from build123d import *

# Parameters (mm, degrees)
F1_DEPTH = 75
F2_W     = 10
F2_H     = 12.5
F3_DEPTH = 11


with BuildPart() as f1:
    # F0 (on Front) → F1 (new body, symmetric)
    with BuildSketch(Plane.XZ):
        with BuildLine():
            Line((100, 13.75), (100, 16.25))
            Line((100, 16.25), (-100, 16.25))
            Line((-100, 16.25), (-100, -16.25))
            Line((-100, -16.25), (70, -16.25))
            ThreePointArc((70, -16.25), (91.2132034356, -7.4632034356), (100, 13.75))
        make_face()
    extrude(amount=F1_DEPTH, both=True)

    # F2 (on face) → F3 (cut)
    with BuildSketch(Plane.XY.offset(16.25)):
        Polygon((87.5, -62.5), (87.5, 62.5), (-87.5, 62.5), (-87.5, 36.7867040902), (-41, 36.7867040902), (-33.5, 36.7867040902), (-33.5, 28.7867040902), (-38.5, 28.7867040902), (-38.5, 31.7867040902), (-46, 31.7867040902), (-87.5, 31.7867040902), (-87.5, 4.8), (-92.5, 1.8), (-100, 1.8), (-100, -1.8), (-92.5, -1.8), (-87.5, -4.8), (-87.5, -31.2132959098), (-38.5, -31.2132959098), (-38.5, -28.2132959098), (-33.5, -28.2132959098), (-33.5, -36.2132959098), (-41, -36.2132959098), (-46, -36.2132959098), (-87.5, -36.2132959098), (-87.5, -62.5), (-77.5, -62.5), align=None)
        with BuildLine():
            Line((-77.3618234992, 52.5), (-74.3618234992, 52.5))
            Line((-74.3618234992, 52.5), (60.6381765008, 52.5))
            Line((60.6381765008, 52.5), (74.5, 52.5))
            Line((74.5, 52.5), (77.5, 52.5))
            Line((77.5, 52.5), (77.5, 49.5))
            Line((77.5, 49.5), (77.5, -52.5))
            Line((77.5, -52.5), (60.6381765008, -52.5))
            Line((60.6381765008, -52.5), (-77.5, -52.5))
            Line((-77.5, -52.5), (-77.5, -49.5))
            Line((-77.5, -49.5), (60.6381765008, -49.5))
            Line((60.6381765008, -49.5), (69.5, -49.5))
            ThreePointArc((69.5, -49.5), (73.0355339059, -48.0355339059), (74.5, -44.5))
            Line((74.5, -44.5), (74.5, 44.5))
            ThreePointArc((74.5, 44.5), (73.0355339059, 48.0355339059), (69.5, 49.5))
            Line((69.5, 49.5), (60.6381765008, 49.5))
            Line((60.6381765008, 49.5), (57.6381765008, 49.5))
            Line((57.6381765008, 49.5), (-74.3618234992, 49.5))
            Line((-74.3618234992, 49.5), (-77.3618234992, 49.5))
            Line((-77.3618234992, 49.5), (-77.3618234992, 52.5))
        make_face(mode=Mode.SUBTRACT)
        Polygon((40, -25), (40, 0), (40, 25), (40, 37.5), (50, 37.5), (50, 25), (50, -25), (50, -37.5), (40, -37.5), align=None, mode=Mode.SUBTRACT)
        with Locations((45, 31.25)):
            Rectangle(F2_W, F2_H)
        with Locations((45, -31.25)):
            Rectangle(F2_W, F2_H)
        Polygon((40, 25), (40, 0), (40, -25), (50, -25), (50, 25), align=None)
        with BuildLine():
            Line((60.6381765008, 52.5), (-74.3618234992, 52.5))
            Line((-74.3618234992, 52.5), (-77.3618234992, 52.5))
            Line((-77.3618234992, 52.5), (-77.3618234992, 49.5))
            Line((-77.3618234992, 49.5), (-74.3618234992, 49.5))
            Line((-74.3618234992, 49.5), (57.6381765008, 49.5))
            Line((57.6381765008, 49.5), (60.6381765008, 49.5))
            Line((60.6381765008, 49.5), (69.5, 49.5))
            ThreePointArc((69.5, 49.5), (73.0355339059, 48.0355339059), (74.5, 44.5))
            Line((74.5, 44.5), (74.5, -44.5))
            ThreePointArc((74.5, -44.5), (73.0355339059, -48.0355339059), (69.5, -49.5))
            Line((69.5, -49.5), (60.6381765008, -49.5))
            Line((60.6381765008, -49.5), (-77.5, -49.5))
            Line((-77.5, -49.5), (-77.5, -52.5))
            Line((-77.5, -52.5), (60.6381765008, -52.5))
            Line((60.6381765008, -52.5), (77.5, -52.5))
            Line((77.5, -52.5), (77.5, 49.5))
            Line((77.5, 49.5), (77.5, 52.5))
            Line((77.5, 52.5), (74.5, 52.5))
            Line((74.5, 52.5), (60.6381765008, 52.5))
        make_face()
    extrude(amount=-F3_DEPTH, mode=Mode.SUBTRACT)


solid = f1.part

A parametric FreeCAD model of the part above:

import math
import FreeCAD as App
import Part
import Sketcher

V = App.Vector

doc = App.newDocument("Part")
body = doc.addObject("PartDesign::Body", "Body")

# Sketch on XZ plane
sketch1 = doc.addObject("Sketcher::SketchObject", "Sketch")
body.addObject(sketch1)
sketch1.AttachmentSupport = (doc.XZ_Plane, [""])
sketch1.MapMode = "FlatFace"
sketch1.addGeometry([
    Part.LineSegment(V(100, 13.75, 0), V(100, 16.25, 0)),  # 0
    Part.LineSegment(V(100, 16.25, 0), V(-100, 16.25, 0)),  # 1
    Part.LineSegment(V(-100, 16.25, 0), V(-100, -16.25, 0)),  # 2
    Part.LineSegment(V(-100, -16.25, 0), V(70, -16.25, 0)),  # 3
    Part.ArcOfCircle(Part.Circle(V(70, 13.75, 0), V(0, 0, 1), 30), math.radians(-90), math.radians(0)),  # 4
], False)
sketch1.addConstraint([
    Sketcher.Constraint("Coincident", 0, 2, 1, 1),
    Sketcher.Constraint("Coincident", 1, 2, 2, 1),
    Sketcher.Constraint("Coincident", 2, 2, 3, 1),
    Sketcher.Constraint("Tangent", 3, 2, 4, 1),
    Sketcher.Constraint("Tangent", 4, 2, 0, 1),
    Sketcher.Constraint("Vertical", 0),
    Sketcher.Constraint("Horizontal", 1),
    Sketcher.Constraint("Vertical", 2),
    Sketcher.Constraint("Horizontal", 3),
    Sketcher.Constraint("Symmetric", 0, 2, 2, 2, -1, 1),
    Sketcher.Constraint("Radius", 4, 30.0),
    Sketcher.Constraint("DistanceX", 1, 2, 1, 1, 200.0),
    Sketcher.Constraint("DistanceY", 0, 1, 0, 2, 2.5),
])
pad1 = doc.addObject("PartDesign::Pad", "Pad")
body.addObject(pad1)
pad1.Profile = sketch1
pad1.Length = 150
pad1.Midplane = True

# Sketch on XY plane
sketch2 = doc.addObject("Sketcher::SketchObject", "Sketch001")
body.addObject(sketch2)
sketch2.AttachmentSupport = (doc.XY_Plane, [""])
sketch2.MapMode = "FlatFace"
sketch2.AttachmentOffset = App.Placement(V(0, 0, 16.25), App.Rotation())
sketch2.addGeometry([
    Part.LineSegment(V(87.5, -62.5, 0), V(87.5, 62.5, 0)),  # 0
    Part.LineSegment(V(87.5, 62.5, 0), V(-87.5, 62.5, 0)),  # 1
    Part.LineSegment(V(-87.5, 62.5, 0), V(-87.5, 36.786704, 0)),  # 2
    Part.LineSegment(V(-87.5, 36.786704, 0), V(-33.5, 36.786704, 0)),  # 3
    Part.LineSegment(V(-33.5, 36.786704, 0), V(-33.5, 28.786704, 0)),  # 4
    Part.LineSegment(V(-33.5, 28.786704, 0), V(-38.5, 28.786704, 0)),  # 5
    Part.LineSegment(V(-38.5, 28.786704, 0), V(-38.5, 31.786704, 0)),  # 6
    Part.LineSegment(V(-38.5, 31.786704, 0), V(-87.5, 31.786704, 0)),  # 7
    Part.LineSegment(V(-87.5, 31.786704, 0), V(-87.5, 4.8, 0)),  # 8
    Part.LineSegment(V(-87.5, 4.8, 0), V(-92.5, 1.8, 0)),  # 9
    Part.LineSegment(V(-92.5, 1.8, 0), V(-100, 1.8, 0)),  # 10
    Part.LineSegment(V(-100, 1.8, 0), V(-100, -1.8, 0)),  # 11
    Part.LineSegment(V(-100, -1.8, 0), V(-92.5, -1.8, 0)),  # 12
    Part.LineSegment(V(-92.5, -1.8, 0), V(-87.5, -4.8, 0)),  # 13
    Part.LineSegment(V(-87.5, -4.8, 0), V(-87.5, -31.213296, 0)),  # 14
    Part.LineSegment(V(-87.5, -31.213296, 0), V(-38.5, -31.213296, 0)),  # 15
    Part.LineSegment(V(-38.5, -31.213296, 0), V(-38.5, -28.213296, 0)),  # 16
    Part.LineSegment(V(-38.5, -28.213296, 0), V(-33.5, -28.213296, 0)),  # 17
    Part.LineSegment(V(-33.5, -28.213296, 0), V(-33.5, -36.213296, 0)),  # 18
    Part.LineSegment(V(-33.5, -36.213296, 0), V(-87.5, -36.213296, 0)),  # 19
    Part.LineSegment(V(-87.5, -36.213296, 0), V(-87.5, -62.5, 0)),  # 20
    Part.LineSegment(V(-87.5, -62.5, 0), V(87.5, -62.5, 0)),  # 21
], False)
sketch2.addConstraint([
    Sketcher.Constraint("Coincident", 0, 2, 1, 1),
    Sketcher.Constraint("Coincident", 1, 2, 2, 1),
    Sketcher.Constraint("Coincident", 2, 2, 3, 1),
    Sketcher.Constraint("Coincident", 3, 2, 4, 1),
    Sketcher.Constraint("Coincident", 4, 2, 5, 1),
    Sketcher.Constraint("Coincident", 5, 2, 6, 1),
    Sketcher.Constraint("Coincident", 6, 2, 7, 1),
    Sketcher.Constraint("Coincident", 7, 2, 8, 1),
    Sketcher.Constraint("Coincident", 8, 2, 9, 1),
    Sketcher.Constraint("Coincident", 9, 2, 10, 1),
    Sketcher.Constraint("Coincident", 10, 2, 11, 1),
    Sketcher.Constraint("Coincident", 11, 2, 12, 1),
    Sketcher.Constraint("Coincident", 12, 2, 13, 1),
    Sketcher.Constraint("Coincident", 13, 2, 14, 1),
    Sketcher.Constraint("Coincident", 14, 2, 15, 1),
    Sketcher.Constraint("Coincident", 15, 2, 16, 1),
    Sketcher.Constraint("Coincident", 16, 2, 17, 1),
    Sketcher.Constraint("Coincident", 17, 2, 18, 1),
    Sketcher.Constraint("Coincident", 18, 2, 19, 1),
    Sketcher.Constraint("Coincident", 19, 2, 20, 1),
    Sketcher.Constraint("Coincident", 20, 2, 21, 1),
    Sketcher.Constraint("Coincident", 21, 2, 0, 1),
    Sketcher.Constraint("Vertical", 0),
    Sketcher.Constraint("Horizontal", 1),
    Sketcher.Constraint("Vertical", 2),
    Sketcher.Constraint("Horizontal", 3),
    Sketcher.Constraint("Vertical", 4),
    Sketcher.Constraint("Horizontal", 5),
    Sketcher.Constraint("Vertical", 6),
    Sketcher.Constraint("Horizontal", 7),
    Sketcher.Constraint("Vertical", 8),
    Sketcher.Constraint("Horizontal", 10),
    Sketcher.Constraint("Vertical", 11),
    Sketcher.Constraint("Horizontal", 12),
    Sketcher.Constraint("Vertical", 14),
    Sketcher.Constraint("Horizontal", 15),
    Sketcher.Constraint("Vertical", 16),
    Sketcher.Constraint("Horizontal", 17),
    Sketcher.Constraint("Vertical", 18),
    Sketcher.Constraint("Horizontal", 19),
    Sketcher.Constraint("Vertical", 20),
    Sketcher.Constraint("Horizontal", 21),
    Sketcher.Constraint("Symmetric", 0, 2, 20, 2, -1, 1),
    Sketcher.Constraint("Symmetric", 9, 2, 12, 2, -1),
    Sketcher.Constraint("Symmetric", 8, 2, 13, 2, -1),
    Sketcher.Constraint("Vertical", 2, 2, 7, 2),
    Sketcher.Constraint("Vertical", 6, 2, 15, 2),
    Sketcher.Constraint("Vertical", 4, 2, 17, 2),
    Sketcher.Constraint("Vertical", 14, 2, 19, 2),
    Sketcher.Constraint("Equal", 6, 16),
    Sketcher.Constraint("Equal", 4, 18),
    Sketcher.Constraint("DistanceX", 1, 2, 1, 1, 175.0),
    Sketcher.Constraint("DistanceX", 3, 1, 3, 2, 54.0),
    Sketcher.Constraint("DistanceX", 5, 2, 5, 1, 5.0),
    Sketcher.Constraint("DistanceY", 0, 1, 0, 2, 125.0),
    Sketcher.Constraint("DistanceY", 4, 2, 4, 1, 8.0),
    Sketcher.Constraint("DistanceY", 6, 1, 6, 2, 3.0),
    Sketcher.Constraint("DistanceX", 10, 2, 10, 1, 7.5),
    Sketcher.Constraint("DistanceY", 11, 2, 11, 1, 3.6),
    Sketcher.Constraint("DistanceX", 10, 2, -1, 1, 100.0),
    Sketcher.Constraint("DistanceY", 9, 2, 8, 2, 3.0),
    Sketcher.Constraint("DistanceY", 15, 2, 5, 2, 60.0),
    Sketcher.Constraint("DistanceY", 2, 2, 2, 1, 25.713296),
])
pocket1 = doc.addObject("PartDesign::Pocket", "Pocket")
body.addObject(pocket1)
pocket1.Profile = sketch2
pocket1.Length = 11

doc.recompute()
